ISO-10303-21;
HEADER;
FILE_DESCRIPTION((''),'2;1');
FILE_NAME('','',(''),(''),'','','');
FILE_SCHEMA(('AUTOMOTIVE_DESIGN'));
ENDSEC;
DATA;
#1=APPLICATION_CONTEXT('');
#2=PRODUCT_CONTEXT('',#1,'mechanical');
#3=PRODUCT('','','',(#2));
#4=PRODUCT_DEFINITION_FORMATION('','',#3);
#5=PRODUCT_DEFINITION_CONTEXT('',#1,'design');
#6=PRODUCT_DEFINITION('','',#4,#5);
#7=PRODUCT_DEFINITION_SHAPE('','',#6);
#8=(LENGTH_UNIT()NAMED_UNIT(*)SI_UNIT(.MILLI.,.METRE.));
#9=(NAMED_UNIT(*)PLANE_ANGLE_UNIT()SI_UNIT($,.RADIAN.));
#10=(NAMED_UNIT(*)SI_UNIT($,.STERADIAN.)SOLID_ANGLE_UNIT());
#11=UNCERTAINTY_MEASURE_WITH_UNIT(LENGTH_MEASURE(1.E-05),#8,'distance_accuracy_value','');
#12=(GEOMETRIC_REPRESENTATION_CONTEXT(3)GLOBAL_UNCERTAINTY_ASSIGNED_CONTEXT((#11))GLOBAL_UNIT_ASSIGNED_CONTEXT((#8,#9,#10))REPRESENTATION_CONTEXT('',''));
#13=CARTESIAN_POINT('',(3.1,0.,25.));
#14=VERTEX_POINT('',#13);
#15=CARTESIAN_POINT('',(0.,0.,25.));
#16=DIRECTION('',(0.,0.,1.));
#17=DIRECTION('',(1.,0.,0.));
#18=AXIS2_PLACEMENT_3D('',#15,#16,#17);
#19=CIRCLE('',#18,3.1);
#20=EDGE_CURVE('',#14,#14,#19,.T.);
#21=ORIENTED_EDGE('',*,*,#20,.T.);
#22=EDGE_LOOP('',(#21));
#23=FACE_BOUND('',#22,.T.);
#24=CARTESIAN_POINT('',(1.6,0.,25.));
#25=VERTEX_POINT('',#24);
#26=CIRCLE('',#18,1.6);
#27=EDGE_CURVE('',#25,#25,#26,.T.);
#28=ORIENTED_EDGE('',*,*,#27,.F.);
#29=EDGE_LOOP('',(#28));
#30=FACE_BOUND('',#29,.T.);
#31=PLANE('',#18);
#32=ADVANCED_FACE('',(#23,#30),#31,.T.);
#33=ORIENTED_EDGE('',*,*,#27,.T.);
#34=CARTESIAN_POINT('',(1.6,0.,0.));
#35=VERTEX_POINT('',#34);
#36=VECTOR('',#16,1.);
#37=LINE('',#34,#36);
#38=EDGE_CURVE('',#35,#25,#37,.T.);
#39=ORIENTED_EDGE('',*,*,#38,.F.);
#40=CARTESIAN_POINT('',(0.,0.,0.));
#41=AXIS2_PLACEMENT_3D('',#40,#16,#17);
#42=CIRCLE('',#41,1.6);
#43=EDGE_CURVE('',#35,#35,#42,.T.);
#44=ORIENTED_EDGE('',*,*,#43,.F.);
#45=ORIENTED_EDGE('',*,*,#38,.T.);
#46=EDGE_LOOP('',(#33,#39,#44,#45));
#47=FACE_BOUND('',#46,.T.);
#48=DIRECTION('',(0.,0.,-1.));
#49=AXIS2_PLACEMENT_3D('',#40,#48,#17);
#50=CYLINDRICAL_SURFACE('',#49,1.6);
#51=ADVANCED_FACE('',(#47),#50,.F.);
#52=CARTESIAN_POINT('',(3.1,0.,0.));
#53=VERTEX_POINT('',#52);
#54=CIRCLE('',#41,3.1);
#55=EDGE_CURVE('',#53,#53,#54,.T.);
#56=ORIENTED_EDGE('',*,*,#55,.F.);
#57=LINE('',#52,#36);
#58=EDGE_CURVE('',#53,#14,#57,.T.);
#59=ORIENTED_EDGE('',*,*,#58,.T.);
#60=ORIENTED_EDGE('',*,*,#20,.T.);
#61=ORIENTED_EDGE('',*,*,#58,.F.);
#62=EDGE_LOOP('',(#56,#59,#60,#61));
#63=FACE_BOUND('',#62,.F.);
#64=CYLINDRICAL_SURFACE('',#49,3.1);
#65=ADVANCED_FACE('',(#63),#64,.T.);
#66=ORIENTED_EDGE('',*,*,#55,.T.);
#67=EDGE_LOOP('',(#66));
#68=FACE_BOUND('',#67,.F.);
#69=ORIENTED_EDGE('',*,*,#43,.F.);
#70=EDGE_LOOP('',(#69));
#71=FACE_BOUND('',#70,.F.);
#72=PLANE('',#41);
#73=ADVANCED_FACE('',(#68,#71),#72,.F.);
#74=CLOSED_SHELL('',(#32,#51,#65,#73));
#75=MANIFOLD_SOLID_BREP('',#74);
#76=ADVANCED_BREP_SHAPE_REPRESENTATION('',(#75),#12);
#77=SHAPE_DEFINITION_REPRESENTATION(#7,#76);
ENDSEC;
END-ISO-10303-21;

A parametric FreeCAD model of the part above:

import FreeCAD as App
import Part
import Sketcher
Q = App.Units.Quantity

doc = App.newDocument("Part")
body = doc.addObject("PartDesign::Body", "Body")

sketch1 = doc.addObject("Sketcher::SketchObject", "Sketch")
body.addObject(sketch1)
sketch1.AttachmentSupport = (doc.XY_Plane, [""])
sketch1.MapMode = "FlatFace"
sketch1.addGeometry([
    Part.Circle(App.Vector(0, 0, 0), App.Vector(0, 0, 1), 3.1),
    Part.Circle(App.Vector(0, 0, 0), App.Vector(0, 0, 1), 1.6),
], False)
sketch1.addConstraint([
    Sketcher.Constraint("Coincident", 0, 3, -1, 1),
    Sketcher.Constraint("Coincident", 1, 3, -1, 1),
    Sketcher.Constraint("Diameter", 0, Q("6.2 mm")),
    Sketcher.Constraint("Diameter", 1, Q("3.2 mm")),
])
pad1 = doc.addObject("PartDesign::Pad", "Pad")
body.addObject(pad1)
pad1.Profile = sketch1
pad1.Length = 25

doc.recompute()
